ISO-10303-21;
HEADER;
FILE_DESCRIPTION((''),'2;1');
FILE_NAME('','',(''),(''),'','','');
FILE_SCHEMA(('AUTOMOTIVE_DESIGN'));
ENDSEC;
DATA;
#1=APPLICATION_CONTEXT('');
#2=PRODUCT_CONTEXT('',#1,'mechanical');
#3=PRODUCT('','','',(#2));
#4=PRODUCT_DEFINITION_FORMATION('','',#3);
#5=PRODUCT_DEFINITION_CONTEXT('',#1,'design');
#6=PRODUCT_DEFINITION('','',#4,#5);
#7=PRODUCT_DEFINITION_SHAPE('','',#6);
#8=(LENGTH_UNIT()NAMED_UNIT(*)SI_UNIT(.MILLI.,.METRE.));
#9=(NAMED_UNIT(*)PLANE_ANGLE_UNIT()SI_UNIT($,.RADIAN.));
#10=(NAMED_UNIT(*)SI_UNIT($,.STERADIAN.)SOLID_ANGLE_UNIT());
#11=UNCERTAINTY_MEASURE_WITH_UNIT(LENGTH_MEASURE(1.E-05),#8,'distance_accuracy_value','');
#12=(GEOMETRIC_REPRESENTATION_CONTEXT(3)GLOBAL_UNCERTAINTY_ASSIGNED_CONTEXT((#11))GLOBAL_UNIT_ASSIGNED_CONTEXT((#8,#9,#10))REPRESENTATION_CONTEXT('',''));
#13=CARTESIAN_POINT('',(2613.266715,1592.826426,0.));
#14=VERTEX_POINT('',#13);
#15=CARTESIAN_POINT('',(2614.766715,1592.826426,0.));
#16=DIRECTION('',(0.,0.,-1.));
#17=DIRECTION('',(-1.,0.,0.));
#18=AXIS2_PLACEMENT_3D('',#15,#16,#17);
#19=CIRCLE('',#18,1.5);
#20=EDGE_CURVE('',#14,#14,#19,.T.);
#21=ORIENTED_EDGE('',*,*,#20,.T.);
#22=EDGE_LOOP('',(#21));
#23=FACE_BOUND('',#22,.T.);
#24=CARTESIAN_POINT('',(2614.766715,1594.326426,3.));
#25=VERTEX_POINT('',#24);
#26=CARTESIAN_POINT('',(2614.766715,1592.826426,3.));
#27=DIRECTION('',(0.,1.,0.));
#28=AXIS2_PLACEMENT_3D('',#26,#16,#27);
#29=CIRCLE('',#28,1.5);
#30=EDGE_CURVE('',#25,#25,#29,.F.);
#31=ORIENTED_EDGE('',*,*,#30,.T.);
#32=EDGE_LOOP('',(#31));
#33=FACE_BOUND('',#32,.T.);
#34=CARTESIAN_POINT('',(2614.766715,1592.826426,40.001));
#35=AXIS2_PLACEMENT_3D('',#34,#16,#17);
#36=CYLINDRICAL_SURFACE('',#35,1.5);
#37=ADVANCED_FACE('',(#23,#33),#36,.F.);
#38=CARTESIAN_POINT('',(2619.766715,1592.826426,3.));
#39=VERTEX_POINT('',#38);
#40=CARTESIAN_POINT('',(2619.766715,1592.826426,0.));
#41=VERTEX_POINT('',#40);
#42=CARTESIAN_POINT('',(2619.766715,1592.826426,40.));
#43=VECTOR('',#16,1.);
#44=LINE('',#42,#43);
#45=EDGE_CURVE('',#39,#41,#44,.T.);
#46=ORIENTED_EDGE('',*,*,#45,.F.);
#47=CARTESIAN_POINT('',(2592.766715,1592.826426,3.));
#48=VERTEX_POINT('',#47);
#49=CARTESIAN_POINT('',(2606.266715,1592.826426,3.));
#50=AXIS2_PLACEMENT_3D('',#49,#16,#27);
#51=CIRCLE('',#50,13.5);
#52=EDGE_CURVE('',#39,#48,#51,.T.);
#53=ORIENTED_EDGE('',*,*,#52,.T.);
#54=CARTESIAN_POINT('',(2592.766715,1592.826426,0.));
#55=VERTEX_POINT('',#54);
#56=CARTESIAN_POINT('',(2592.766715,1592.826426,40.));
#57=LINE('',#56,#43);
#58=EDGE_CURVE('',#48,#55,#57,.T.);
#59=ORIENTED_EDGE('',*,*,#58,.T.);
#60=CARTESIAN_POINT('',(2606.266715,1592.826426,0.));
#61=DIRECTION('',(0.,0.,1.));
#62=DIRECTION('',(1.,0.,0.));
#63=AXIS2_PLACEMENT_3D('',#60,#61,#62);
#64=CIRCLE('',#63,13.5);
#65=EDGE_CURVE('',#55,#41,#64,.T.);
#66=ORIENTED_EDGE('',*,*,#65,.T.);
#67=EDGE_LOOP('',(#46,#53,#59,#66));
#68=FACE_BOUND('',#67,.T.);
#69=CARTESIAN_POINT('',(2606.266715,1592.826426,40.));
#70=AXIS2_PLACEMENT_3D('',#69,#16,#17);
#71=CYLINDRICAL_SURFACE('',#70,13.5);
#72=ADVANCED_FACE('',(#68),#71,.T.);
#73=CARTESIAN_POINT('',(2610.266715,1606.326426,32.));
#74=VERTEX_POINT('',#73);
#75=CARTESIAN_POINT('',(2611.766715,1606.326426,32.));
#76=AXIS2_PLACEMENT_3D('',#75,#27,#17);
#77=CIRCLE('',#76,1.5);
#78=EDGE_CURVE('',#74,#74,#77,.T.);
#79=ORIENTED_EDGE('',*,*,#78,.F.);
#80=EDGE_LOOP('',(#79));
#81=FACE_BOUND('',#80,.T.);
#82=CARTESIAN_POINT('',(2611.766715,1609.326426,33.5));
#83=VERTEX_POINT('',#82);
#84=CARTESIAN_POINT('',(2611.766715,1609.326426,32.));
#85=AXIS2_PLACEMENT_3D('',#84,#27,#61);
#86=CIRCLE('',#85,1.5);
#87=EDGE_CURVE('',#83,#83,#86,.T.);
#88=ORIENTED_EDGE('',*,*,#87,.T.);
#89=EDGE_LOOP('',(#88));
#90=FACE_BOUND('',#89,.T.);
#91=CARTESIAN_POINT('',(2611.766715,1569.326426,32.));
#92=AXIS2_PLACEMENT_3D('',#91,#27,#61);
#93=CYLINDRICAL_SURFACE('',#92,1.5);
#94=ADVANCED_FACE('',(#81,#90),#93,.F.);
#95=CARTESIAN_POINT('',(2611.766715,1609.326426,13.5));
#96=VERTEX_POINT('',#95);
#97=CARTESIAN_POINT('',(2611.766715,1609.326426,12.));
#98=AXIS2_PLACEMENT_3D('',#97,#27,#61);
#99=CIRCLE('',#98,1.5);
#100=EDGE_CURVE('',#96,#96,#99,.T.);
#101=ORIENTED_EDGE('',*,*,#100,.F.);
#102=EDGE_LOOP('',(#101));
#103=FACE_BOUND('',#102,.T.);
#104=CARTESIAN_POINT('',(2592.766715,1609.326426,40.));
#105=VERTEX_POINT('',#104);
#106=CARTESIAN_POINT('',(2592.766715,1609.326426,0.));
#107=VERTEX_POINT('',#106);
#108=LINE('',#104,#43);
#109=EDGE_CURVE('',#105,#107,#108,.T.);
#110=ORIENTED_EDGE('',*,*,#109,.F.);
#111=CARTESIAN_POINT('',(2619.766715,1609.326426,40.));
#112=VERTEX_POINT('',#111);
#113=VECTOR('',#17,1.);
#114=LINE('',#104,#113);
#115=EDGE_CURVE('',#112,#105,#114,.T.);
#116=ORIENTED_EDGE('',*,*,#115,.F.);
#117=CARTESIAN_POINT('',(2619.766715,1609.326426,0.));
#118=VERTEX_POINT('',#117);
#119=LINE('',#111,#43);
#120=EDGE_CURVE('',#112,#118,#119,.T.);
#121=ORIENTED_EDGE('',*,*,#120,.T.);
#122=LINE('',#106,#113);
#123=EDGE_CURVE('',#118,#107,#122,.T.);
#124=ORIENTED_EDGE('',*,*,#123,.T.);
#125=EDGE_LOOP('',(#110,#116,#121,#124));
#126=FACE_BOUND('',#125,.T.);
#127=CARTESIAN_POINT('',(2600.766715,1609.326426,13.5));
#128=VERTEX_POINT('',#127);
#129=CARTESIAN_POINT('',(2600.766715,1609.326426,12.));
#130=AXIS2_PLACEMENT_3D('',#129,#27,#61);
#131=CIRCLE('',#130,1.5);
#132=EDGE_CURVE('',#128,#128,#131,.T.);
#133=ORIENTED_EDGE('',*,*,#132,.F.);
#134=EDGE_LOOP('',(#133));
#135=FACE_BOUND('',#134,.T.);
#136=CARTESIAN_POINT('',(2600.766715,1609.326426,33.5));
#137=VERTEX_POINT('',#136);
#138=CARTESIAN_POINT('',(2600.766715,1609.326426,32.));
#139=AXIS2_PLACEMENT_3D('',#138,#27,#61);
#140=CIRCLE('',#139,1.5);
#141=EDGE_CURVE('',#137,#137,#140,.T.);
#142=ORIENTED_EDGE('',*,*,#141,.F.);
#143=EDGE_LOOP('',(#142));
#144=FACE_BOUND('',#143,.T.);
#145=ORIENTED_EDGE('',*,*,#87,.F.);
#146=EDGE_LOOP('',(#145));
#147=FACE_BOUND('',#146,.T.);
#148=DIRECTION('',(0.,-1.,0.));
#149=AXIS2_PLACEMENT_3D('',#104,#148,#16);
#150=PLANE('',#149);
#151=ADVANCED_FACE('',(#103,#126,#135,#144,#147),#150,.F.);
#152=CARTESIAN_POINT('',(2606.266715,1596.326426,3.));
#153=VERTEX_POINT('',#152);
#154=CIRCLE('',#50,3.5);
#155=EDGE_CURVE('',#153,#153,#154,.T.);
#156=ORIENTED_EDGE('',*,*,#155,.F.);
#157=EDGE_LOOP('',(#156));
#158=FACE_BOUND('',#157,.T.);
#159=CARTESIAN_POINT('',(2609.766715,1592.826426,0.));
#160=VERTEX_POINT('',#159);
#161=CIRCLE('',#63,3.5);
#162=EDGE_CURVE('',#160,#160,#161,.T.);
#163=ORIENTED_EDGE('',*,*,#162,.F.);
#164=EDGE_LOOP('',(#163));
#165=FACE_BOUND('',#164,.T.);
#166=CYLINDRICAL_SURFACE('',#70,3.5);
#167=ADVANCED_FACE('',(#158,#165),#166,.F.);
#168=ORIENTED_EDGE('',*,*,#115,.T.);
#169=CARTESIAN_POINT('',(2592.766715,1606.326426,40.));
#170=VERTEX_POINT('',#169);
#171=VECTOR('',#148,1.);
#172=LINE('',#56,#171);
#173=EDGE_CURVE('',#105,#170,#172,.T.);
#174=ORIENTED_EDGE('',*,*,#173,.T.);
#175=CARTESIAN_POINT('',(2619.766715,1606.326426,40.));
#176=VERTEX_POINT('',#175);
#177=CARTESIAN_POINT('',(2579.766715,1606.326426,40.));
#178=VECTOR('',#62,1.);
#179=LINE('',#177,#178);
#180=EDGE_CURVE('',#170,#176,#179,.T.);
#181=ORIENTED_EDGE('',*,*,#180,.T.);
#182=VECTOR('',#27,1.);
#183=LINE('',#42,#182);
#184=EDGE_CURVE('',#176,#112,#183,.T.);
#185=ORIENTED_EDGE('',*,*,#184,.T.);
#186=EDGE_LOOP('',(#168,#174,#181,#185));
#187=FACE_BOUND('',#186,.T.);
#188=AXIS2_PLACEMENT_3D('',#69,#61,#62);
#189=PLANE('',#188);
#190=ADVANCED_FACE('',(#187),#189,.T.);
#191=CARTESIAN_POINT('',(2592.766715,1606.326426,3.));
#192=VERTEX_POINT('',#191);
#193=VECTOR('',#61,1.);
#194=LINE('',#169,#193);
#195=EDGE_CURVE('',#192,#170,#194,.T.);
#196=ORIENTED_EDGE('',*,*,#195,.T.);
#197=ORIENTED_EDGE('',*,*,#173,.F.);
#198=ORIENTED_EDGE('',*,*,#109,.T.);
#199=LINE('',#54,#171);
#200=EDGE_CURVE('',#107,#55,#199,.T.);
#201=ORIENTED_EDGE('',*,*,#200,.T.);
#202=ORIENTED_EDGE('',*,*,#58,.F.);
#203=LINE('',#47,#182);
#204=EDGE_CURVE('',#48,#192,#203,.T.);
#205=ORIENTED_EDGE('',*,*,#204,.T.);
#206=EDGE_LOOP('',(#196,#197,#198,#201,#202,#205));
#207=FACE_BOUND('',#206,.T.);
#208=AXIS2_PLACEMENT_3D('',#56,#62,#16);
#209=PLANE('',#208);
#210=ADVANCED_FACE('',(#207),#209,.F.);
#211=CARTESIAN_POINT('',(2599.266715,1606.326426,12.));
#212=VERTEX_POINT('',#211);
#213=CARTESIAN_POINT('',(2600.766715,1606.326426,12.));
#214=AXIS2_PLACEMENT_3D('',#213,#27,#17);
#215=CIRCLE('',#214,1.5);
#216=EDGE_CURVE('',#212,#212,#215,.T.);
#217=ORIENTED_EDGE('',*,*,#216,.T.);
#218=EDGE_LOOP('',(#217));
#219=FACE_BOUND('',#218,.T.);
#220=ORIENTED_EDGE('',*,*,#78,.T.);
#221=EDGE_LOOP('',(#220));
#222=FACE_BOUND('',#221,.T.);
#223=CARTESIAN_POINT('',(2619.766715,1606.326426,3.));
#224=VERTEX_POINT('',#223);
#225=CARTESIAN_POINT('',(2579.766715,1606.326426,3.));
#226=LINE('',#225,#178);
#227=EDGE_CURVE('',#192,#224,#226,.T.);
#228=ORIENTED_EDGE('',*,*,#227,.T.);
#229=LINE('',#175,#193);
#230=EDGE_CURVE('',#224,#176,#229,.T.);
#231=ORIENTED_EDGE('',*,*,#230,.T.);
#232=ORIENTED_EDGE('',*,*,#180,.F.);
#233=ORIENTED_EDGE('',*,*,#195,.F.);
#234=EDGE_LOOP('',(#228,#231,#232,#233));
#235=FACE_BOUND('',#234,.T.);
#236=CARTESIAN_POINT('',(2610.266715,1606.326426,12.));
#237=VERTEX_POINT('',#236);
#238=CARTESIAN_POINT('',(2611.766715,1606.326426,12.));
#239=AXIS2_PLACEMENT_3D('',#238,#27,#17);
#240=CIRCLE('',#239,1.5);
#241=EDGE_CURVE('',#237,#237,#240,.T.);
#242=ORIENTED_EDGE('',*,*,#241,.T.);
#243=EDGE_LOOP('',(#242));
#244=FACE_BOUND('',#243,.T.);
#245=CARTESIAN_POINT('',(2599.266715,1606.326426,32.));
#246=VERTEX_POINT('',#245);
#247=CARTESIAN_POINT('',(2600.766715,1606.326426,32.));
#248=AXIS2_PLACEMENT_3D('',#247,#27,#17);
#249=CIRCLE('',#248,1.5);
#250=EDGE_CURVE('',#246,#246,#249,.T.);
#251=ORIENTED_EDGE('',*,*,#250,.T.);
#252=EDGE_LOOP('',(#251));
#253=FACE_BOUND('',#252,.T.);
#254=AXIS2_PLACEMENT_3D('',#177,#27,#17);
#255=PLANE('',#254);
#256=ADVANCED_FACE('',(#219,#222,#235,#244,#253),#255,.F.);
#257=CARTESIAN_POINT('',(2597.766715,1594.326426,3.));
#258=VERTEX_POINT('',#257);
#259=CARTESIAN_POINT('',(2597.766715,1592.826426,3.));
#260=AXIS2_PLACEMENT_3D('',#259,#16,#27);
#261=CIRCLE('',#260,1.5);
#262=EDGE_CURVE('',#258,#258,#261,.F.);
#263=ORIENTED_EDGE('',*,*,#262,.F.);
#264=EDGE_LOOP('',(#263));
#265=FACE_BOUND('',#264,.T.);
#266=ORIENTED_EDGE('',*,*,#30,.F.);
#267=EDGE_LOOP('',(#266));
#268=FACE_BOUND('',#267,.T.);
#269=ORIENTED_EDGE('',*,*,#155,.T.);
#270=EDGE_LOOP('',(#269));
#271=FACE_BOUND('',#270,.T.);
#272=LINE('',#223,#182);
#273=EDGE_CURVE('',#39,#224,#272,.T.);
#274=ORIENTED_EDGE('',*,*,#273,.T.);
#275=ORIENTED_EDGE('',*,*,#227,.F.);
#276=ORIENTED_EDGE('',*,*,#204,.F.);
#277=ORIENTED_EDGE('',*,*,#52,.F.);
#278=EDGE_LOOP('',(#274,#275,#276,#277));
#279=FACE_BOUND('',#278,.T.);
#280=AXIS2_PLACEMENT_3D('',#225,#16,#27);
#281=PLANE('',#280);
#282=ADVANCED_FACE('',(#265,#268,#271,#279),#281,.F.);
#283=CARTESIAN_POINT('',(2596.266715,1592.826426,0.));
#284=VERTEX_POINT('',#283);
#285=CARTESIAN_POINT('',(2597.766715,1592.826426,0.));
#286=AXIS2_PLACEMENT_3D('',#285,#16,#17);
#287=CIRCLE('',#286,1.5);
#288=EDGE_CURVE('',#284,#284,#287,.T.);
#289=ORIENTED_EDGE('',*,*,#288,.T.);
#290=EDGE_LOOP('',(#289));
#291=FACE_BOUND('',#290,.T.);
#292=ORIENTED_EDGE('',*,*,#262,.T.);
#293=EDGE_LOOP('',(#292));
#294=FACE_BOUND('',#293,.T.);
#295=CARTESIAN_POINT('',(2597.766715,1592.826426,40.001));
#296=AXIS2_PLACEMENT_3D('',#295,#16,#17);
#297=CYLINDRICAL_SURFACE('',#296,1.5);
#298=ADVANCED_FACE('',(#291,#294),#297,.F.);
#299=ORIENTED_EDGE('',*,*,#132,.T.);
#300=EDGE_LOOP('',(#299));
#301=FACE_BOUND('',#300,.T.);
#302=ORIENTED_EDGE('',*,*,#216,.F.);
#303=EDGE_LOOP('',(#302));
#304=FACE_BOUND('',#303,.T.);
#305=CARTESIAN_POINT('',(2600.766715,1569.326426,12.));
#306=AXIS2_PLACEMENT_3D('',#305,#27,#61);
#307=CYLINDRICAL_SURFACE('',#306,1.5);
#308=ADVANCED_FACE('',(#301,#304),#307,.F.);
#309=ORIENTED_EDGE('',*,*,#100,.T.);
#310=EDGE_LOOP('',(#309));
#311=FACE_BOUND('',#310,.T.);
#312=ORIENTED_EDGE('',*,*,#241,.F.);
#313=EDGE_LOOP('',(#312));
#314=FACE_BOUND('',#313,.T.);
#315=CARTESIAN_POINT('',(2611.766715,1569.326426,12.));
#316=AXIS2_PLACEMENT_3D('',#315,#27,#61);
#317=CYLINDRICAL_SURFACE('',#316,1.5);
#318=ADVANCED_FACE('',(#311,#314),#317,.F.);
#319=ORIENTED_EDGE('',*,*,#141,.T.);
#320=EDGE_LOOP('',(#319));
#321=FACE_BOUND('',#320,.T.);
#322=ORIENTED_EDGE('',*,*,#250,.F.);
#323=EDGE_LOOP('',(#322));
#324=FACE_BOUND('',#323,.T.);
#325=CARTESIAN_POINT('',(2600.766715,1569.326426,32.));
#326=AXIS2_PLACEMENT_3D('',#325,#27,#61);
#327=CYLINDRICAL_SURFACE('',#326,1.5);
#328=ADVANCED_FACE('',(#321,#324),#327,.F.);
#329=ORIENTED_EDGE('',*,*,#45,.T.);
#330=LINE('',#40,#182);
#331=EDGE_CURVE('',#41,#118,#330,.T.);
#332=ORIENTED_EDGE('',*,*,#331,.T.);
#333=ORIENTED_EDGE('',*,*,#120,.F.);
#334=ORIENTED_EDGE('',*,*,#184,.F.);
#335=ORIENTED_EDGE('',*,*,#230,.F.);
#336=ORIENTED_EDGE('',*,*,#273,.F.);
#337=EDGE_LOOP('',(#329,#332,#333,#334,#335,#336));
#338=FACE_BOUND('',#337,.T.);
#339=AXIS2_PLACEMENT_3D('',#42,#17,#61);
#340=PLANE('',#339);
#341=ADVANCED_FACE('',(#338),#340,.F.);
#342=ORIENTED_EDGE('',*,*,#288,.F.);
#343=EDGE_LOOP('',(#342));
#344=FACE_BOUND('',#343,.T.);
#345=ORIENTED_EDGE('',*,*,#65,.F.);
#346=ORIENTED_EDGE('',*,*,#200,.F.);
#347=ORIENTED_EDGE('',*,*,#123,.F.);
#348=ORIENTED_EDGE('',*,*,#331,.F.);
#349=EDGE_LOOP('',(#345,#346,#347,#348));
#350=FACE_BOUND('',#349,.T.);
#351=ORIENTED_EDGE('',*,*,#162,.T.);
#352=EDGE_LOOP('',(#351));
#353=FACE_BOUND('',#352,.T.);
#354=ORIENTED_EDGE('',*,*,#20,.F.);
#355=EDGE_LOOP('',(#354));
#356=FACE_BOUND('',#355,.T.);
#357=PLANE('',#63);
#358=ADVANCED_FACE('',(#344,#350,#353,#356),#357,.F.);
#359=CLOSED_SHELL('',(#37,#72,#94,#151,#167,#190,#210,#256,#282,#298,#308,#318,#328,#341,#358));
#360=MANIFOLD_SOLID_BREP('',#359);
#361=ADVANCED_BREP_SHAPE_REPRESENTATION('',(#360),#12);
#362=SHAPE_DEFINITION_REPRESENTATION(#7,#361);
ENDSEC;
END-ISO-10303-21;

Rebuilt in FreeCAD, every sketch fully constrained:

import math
import FreeCAD as App
import Part
import Sketcher

V = App.Vector
Q = App.Units.Quantity

doc = App.newDocument("Part")
body = doc.addObject("PartDesign::Body", "Body")

# Sketch on XY plane
sketch1 = doc.addObject("Sketcher::SketchObject", "Sketch")
body.addObject(sketch1)
sketch1.AttachmentSupport = (doc.XY_Plane, [""])
sketch1.MapMode = "FlatFace"
sketch1.addGeometry([
    Part.LineSegment(V(2619.8, 1592.8, 0), V(2619.8, 1609.3, 0)),  # 0
    Part.LineSegment(V(2619.8, 1609.3, 0), V(2592.8, 1609.3, 0)),  # 1
    Part.LineSegment(V(2592.8, 1609.3, 0), V(2592.8, 1592.8, 0)),  # 2
    Part.ArcOfCircle(Part.Circle(V(2606.3, 1592.8, 0), V(0, 0, 1), 13.5), math.radians(180), math.radians(360)),  # 3
    Part.Circle(V(2606.3, 1592.8, 0), V(0, 0, 1), 3.5),  # 4
], False)
sketch1.addConstraint([
    Sketcher.Constraint("Coincident", 0, 2, 1, 1),
    Sketcher.Constraint("Coincident", 1, 2, 2, 1),
    Sketcher.Constraint("Tangent", 2, 2, 3, 1),
    Sketcher.Constraint("Tangent", 3, 2, 0, 1),
    Sketcher.Constraint("Vertical", 0),
    Sketcher.Constraint("Horizontal", 1),
    Sketcher.Constraint("Vertical", 2),
    Sketcher.Constraint("Coincident", 4, 3, 3, 3),
    Sketcher.Constraint("Diameter", 4, Q("7 mm")),
    Sketcher.Constraint("Radius", 3, Q("13.5 mm")),
    Sketcher.Constraint("DistanceY", 0, 1, 0, 2, Q("16.5 mm")),
    Sketcher.Constraint("DistanceX", -1, 1, 3, 3, Q("2606.266715 mm")),
    Sketcher.Constraint("DistanceY", -1, 1, 3, 3, Q("1592.826426 mm")),
])
pad1 = doc.addObject("PartDesign::Pad", "Pad")
body.addObject(pad1)
pad1.Profile = sketch1
pad1.Length = 40

# Sketch on YZ plane
sketch2 = doc.addObject("Sketcher::SketchObject", "Sketch001")
body.addObject(sketch2)
sketch2.AttachmentSupport = (doc.YZ_Plane, [""])
sketch2.MapMode = "FlatFace"
sketch2.AttachmentOffset = App.Placement(V(0, 0, 2619.766715), App.Rotation())
sketch2.addGeometry([
    Part.LineSegment(V(1606, 40, 0), V(1569, 40, 0)),
    Part.LineSegment(V(1569, 40, 0), V(1569, 3, 0)),
    Part.LineSegment(V(1569, 3, 0), V(1606, 3, 0)),
    Part.LineSegment(V(1606, 3, 0), V(1606, 40, 0)),
], False)
sketch2.addConstraint([
    Sketcher.Constraint("Coincident", 0, 2, 1, 1),
    Sketcher.Constraint("Coincident", 1, 2, 2, 1),
    Sketcher.Constraint("Coincident", 2, 2, 3, 1),
    Sketcher.Constraint("Coincident", 3, 2, 0, 1),
    Sketcher.Constraint("Horizontal", 0),
    Sketcher.Constraint("Vertical", 1),
    Sketcher.Constraint("Horizontal", 2),
    Sketcher.Constraint("Vertical", 3),
    Sketcher.Constraint("Equal", 2, 1),
    Sketcher.Constraint("DistanceX", 0, 2, 0, 1, Q("37 mm")),
    Sketcher.Constraint("DistanceY", -1, 1, 0, 2, Q("40 mm")),
    Sketcher.Constraint("DistanceX", -1, 1, 0, 2, Q("1569.326426 mm")),
])
pocket1 = doc.addObject("PartDesign::Pocket", "Pocket")
body.addObject(pocket1)
pocket1.Profile = sketch2
pocket1.Length = 40

# Sketch on XZ plane
sketch3 = doc.addObject("Sketcher::SketchObject", "Sketch002")
body.addObject(sketch3)
sketch3.AttachmentSupport = (doc.XZ_Plane, [""])
sketch3.MapMode = "FlatFace"
sketch3.AttachmentOffset = App.Placement(V(0, 0, -1609.326426), App.Rotation())
sketch3.addGeometry([
    Part.Circle(V(2600.8, 32, 0), V(0, 0, 1), 1.5),
    Part.Circle(V(2611.8, 32, 0), V(0, 0, 1), 1.5),
    Part.Circle(V(2600.8, 12, 0), V(0, 0, 1), 1.5),
    Part.Circle(V(2611.8, 12, 0), V(0, 0, 1), 1.5),
], False)
sketch3.addConstraint([
    Sketcher.Constraint("Equal", 0, 1),
    Sketcher.Constraint("Equal", 1, 2),
    Sketcher.Constraint("Equal", 2, 3),
    Sketcher.Constraint("Horizontal", 0, 3, 1, 3),
    Sketcher.Constraint("Horizontal", 2, 3, 3, 3),
    Sketcher.Constraint("Vertical", 0, 3, 2, 3),
    Sketcher.Constraint("Vertical", 1, 3, 3, 3),
    Sketcher.Constraint("Diameter", 0, Q("3 mm")),
    Sketcher.Constraint("DistanceY", -1, 1, 0, 3, Q("32 mm")),
    Sketcher.Constraint("DistanceY", -1, 1, 2, 3, Q("12 mm")),
    Sketcher.Constraint("DistanceX", 0, 3, 1, 3, Q("11 mm")),
    Sketcher.Constraint("DistanceX", -1, 1, 0, 3, Q("2600.766715 mm")),
])
pocket2 = doc.addObject("PartDesign::Pocket", "Pocket001")
body.addObject(pocket2)
pocket2.Profile = sketch3
pocket2.Length = 40
pocket2.Reversed = True

# Sketch on XY plane
sketch4 = doc.addObject("Sketcher::SketchObject", "Sketch003")
body.addObject(sketch4)
sketch4.AttachmentSupport = (doc.XY_Plane, [""])
sketch4.MapMode = "FlatFace"
sketch4.addGeometry(Part.Circle(V(2597.8, 1592.8, 0), V(0, 0, 1), 1.5), False)
sketch4.addConstraint([
    Sketcher.Constraint("Diameter", 0, Q("3 mm")),
    Sketcher.Constraint("DistanceX", -1, 1, 0, 3, Q("2597.766715 mm")),
    Sketcher.Constraint("DistanceY", -1, 1, 0, 3, Q("1592.826426 mm")),
])
pocket3 = doc.addObject("PartDesign::Pocket", "Pocket002")
body.addObject(pocket3)
pocket3.Profile = sketch4
pocket3.Type = "UpToFirst"
pocket3.Reversed = True

# Sketch on XY plane
sketch5 = doc.addObject("Sketcher::SketchObject", "Sketch004")
body.addObject(sketch5)
sketch5.AttachmentSupport = (doc.XY_Plane, [""])
sketch5.MapMode = "FlatFace"
sketch5.addGeometry(Part.Circle(V(2614.8, 1592.8, 0), V(0, 0, 1), 1.5), False)
sketch5.addConstraint([
    Sketcher.Constraint("Diameter", 0, Q("3 mm")),
    Sketcher.Constraint("DistanceX", -1, 1, 0, 3, Q("2614.766715 mm")),
    Sketcher.Constraint("DistanceY", -1, 1, 0, 3, Q("1592.826426 mm")),
])
pocket4 = doc.addObject("PartDesign::Pocket", "Pocket003")
body.addObject(pocket4)
pocket4.Profile = sketch5
pocket4.Type = "UpToFirst"
pocket4.Reversed = True

doc.recompute()
